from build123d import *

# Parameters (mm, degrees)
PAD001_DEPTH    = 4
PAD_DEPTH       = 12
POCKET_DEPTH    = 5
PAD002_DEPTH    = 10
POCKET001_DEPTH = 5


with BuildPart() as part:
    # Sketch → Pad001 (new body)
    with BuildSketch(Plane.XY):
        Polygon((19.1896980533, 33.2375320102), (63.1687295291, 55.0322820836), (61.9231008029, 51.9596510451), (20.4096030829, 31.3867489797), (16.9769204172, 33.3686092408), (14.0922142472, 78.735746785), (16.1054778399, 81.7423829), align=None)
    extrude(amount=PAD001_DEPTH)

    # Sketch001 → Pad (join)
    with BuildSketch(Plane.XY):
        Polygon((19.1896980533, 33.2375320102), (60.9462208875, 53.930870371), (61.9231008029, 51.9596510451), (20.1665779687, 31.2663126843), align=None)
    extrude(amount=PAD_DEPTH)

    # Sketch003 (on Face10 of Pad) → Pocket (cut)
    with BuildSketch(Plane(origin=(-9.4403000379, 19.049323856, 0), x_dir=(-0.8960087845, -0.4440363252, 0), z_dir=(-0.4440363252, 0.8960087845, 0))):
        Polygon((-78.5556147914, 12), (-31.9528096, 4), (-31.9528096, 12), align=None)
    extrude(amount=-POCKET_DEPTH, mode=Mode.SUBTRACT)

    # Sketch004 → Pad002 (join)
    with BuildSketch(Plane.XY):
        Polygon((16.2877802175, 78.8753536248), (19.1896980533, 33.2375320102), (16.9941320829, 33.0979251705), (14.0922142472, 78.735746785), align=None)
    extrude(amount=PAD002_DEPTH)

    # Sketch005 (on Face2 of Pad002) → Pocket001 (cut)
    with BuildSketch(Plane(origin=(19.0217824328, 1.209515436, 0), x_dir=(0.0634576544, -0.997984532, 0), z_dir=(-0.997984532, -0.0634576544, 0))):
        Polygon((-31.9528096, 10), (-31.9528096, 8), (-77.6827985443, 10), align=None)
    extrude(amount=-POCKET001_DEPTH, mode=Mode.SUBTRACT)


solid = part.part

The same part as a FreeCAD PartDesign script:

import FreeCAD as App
import Part
import Sketcher
from FreeCAD import Vector
Q = App.Units.Quantity


def add_polygon(sketch, points):
    """Adds a closed chain of lines whose ends are joined by coincident constraints."""
    first, n = sketch.GeometryCount, len(points)
    for a, b in zip(points, points[1:] + points[:1]):
        sketch.addGeometry(Part.LineSegment(App.Vector(*a, 0), App.Vector(*b, 0)), False)
    for i in range(n):
        sketch.addConstraint(Sketcher.Constraint("Coincident", first + i, 2, first + (i + 1) % n, 1))

doc = App.newDocument("Part")
body = doc.addObject("PartDesign::Body", "Body")

sketch1 = doc.addObject("Sketcher::SketchObject", "Sketch")
body.addObject(sketch1)
sketch1.AttachmentSupport = (doc.XY_Plane, [""])
sketch1.MapMode = "FlatFace"
add_polygon(sketch1, [(63.2, 55), (19.2, 33.2), (16.1, 81.7), (14.1, 78.7), (17, 33.4), (20.4, 31.4), (61.9, 52)])
sketch1.addConstraint([
    Sketcher.Constraint("Parallel", 1, 3),
    Sketcher.Constraint("Parallel", 0, 5),
    Sketcher.Constraint("Angle", 4, Q("-30 deg")),
    Sketcher.Constraint("DistanceX", -1, 1, 0, 2, Q("19.189698 mm")),
    Sketcher.Constraint("DistanceX", -1, 1, 5, 2, Q("61.923101 mm")),
    Sketcher.Constraint("DistanceY", 6, 2, 1, 2, Q("26.710101 mm")),
    Sketcher.Constraint("Distance", 0, Q("49.083259 mm")),
    Sketcher.Constraint("Distance", 1, Q("48.602808 mm")),
    Sketcher.Constraint("Distance", 3, Q("45.458758 mm")),
    Sketcher.Constraint("Distance", 4, Q("3.963721 mm")),
    Sketcher.Constraint("DistanceX", -1, 1, 3, 2, Q("16.97692 mm")),
    Sketcher.Constraint("DistanceY", -1, 1, 3, 2, Q("33.368609 mm")),
    Sketcher.Constraint("DistanceY", -1, 1, 5, 2, Q("51.959651 mm")),
    Sketcher.Constraint("DistanceY", 0, 2, 5, 2, Q("18.722119 mm")),
])
pad1 = doc.addObject("PartDesign::Pad", "Pad")
body.addObject(pad1)
pad1.Profile = sketch1
pad1.Length = 4

sketch2 = doc.addObject("Sketcher::SketchObject", "Sketch001")
body.addObject(sketch2)
sketch2.AttachmentSupport = (doc.XY_Plane, [""])
sketch2.MapMode = "FlatFace"
add_polygon(sketch2, [(60.9, 53.9), (19.2, 33.2), (20.2, 31.3), (61.9, 52)])
sketch2.addConstraint([
    Sketcher.Constraint("Perpendicular", 0, 1),
    Sketcher.Constraint("Perpendicular", 1, 2),
    Sketcher.Constraint("Perpendicular", 2, 3),
    Sketcher.Constraint("Distance", 1, Q("2.2 mm")),
    Sketcher.Constraint("DistanceX", -1, 1, 0, 2, Q("19.189698 mm")),
    Sketcher.Constraint("DistanceX", -1, 1, 2, 2, Q("61.923101 mm")),
    Sketcher.Constraint("DistanceY", -1, 1, 2, 2, Q("51.959651 mm")),
    Sketcher.Constraint("DistanceX", -1, 1, 3, 2, Q("60.946221 mm")),
])
pad2 = doc.addObject("PartDesign::Pad", "Pad001")
body.addObject(pad2)
pad2.Profile = sketch2
pad2.Length = 12

sketch3 = doc.addObject("Sketcher::SketchObject", "Sketch002")
body.addObject(sketch3)
sketch3.Placement = App.Placement(Vector(-9.4403, 19.049324, 0), App.Rotation(Vector(-0.896008785, -0.444036325, 0), Vector(0, 0, 1.000000001), Vector(-0.444036325, 0.896008785, 0), "ZXY"))
add_polygon(sketch3, [(-79, 12), (-32, 4), (-32, 12)])
sketch3.addConstraint([
    Sketcher.Constraint("Vertical", 1),
    Sketcher.Constraint("Horizontal", 2),
    Sketcher.Constraint("DistanceY", 1, 1, 1, 2, Q("8 mm")),
    Sketcher.Constraint("DistanceY", -1, 1, 0, 2, Q("4 mm")),
    Sketcher.Constraint("DistanceX", 2, 2, 2, 1, Q("46.602805 mm")),
    Sketcher.Constraint("DistanceX", 0, 2, -1, 1, Q("31.95281 mm")),
])
pocket1 = doc.addObject("PartDesign::Pocket", "Pocket")
body.addObject(pocket1)
pocket1.Profile = sketch3
pocket1.Length = 5

sketch4 = doc.addObject("Sketcher::SketchObject", "Sketch003")
body.addObject(sketch4)
sketch4.AttachmentSupport = (doc.XY_Plane, [""])
sketch4.MapMode = "FlatFace"
add_polygon(sketch4, [(19.2, 33.2), (16.3, 78.9), (14.1, 78.7), (17, 33.1)])
sketch4.addConstraint([
    Sketcher.Constraint("Perpendicular", 0, 1),
    Sketcher.Constraint("Perpendicular", 1, 2),
    Sketcher.Constraint("Perpendicular", 2, 3),
    Sketcher.Constraint("Distance", 1, Q("2.2 mm")),
    Sketcher.Constraint("DistanceX", -1, 1, 3, 2, Q("19.189698 mm")),
    Sketcher.Constraint("Distance", 0, Q("45.729989 mm")),
    Sketcher.Constraint("DistanceX", -1, 1, 0, 2, Q("16.28778 mm")),
    Sketcher.Constraint("DistanceY", -1, 1, 0, 2, Q("78.875354 mm")),
])
pad3 = doc.addObject("PartDesign::Pad", "Pad002")
body.addObject(pad3)
pad3.Profile = sketch4
pad3.Length = 10

sketch5 = doc.addObject("Sketcher::SketchObject", "Sketch004")
body.addObject(sketch5)
sketch5.Placement = App.Placement(Vector(19.021782, 1.209515, 0), App.Rotation(Vector(0.063457654, -0.997984532, 0), Vector(0, 0, 1), Vector(-0.997984532, -0.063457654, 0), "ZXY"))
add_polygon(sketch5, [(-32, 8), (-32, 10), (-77.7, 10)])
sketch5.addConstraint([
    Sketcher.Constraint("Vertical", 0),
    Sketcher.Constraint("Horizontal", 1),
    Sketcher.Constraint("DistanceY", 0, 1, 0, 2, Q("2 mm")),
    Sketcher.Constraint("DistanceY", -1, 1, 0, 2, Q("10 mm")),
    Sketcher.Constraint("DistanceX", 1, 2, 1, 1, Q("45.729989 mm")),
    Sketcher.Constraint("DistanceX", 1, 2, -1, 1, Q("77.682799 mm")),
])
pocket2 = doc.addObject("PartDesign::Pocket", "Pocket001")
body.addObject(pocket2)
pocket2.Profile = sketch5
pocket2.Length = 5

doc.recompute()
